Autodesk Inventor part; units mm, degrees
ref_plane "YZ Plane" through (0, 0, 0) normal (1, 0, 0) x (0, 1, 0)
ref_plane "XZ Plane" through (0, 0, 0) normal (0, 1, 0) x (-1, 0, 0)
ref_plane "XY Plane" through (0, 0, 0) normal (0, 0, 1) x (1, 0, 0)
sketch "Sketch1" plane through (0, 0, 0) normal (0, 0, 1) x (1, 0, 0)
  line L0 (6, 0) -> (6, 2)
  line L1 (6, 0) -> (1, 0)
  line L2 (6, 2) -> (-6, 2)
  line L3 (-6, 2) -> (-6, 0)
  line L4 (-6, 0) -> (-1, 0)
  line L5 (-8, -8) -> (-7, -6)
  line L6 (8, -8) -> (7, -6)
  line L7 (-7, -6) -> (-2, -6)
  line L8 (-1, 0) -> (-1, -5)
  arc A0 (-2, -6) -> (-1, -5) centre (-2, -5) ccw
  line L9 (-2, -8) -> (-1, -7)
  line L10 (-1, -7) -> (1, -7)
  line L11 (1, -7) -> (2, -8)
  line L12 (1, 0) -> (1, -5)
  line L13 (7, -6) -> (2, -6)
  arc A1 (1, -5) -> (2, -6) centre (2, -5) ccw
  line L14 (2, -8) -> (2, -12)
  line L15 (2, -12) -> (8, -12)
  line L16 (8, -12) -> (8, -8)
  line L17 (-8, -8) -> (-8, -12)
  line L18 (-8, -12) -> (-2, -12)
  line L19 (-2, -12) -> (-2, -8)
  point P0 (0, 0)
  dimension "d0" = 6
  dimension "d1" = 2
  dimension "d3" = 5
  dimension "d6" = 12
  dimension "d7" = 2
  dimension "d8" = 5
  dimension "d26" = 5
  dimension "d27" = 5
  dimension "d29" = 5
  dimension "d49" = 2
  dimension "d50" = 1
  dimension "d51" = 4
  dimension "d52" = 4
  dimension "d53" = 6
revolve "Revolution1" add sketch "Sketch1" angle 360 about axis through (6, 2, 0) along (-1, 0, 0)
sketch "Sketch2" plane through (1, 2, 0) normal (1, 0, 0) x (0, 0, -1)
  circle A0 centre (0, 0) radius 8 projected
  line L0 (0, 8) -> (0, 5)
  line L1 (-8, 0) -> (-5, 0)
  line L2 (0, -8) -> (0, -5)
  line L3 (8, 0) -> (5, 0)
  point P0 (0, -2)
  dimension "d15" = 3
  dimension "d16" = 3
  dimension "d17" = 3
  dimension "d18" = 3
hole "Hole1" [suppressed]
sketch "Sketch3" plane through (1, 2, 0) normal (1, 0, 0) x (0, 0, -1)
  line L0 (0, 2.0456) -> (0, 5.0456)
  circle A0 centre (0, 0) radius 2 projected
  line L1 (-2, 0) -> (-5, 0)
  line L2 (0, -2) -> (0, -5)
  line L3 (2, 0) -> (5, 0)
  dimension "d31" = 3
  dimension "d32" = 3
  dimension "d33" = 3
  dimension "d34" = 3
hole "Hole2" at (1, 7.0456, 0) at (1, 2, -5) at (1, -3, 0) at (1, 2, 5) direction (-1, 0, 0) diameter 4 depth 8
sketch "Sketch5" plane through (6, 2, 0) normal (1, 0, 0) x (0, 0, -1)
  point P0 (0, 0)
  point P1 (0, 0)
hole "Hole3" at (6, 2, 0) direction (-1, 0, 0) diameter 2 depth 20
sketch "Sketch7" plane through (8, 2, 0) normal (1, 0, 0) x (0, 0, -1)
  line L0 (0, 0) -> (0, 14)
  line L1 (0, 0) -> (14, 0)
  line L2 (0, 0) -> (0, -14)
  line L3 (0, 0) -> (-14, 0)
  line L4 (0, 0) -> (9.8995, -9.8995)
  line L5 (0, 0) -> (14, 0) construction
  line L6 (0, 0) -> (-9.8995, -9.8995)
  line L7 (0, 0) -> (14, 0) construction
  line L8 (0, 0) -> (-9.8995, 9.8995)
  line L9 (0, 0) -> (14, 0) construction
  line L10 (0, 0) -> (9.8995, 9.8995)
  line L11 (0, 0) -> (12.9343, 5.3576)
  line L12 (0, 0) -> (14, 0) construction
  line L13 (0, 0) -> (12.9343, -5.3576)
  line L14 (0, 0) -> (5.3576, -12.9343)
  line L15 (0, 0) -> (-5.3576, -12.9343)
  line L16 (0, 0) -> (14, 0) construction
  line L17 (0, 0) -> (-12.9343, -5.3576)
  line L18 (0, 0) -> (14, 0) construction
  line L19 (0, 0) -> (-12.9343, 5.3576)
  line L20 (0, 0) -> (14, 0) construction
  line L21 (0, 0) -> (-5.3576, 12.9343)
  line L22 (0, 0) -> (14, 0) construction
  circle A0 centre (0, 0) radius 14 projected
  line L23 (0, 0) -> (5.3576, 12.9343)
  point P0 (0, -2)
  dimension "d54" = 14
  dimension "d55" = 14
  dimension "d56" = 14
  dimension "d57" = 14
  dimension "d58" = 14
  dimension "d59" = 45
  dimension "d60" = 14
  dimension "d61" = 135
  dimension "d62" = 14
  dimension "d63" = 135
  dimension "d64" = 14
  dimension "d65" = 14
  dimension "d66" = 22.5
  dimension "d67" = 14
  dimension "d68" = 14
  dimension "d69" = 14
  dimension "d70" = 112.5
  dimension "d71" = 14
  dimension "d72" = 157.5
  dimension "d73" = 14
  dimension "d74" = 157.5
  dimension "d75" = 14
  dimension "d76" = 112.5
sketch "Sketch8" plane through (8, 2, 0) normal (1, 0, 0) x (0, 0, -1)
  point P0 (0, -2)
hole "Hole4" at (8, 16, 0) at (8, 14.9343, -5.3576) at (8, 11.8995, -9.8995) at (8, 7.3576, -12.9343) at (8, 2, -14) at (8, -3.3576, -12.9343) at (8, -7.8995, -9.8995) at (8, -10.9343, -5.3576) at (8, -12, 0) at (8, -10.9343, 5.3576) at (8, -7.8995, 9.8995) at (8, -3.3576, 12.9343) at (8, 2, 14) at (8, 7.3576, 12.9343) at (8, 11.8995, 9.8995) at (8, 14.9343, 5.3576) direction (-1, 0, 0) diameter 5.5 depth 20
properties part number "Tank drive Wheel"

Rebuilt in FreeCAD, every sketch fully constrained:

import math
import FreeCAD as App
import Part
import Sketcher

V = App.Vector
Q = App.Units.Quantity

doc = App.newDocument("Part")
params = doc.addObject("Spreadsheet::Sheet", "Params")
for row, (alias, value) in enumerate([
    ("sketch1_radius", "1 mm"),
    ("sketch1_width", "5 mm"),
    ("sketch1_width2", "12 mm"),
    ("sketch1_width3", "6 mm"),
    ("sketch1_height", "4 mm"),
    ("revolution_angle", "360 deg"),
    ("sketch2_diameter", "4 mm"),
    ("hole_diameter", "4 mm"),
    ("hole_depth", "8 mm"),
    ("sketch3_diameter", "2 mm"),
    ("hole2_diameter", "2 mm"),
    ("hole2_depth", "20 mm"),
    ("sketch4_diameter", "5.5 mm"),
    ("hole3_diameter", "5.5 mm"),
    ("hole3_depth", "20 mm"),
], start=1):
    params.set(f"A{row}", alias)
    params.set(f"B{row}", "=" + value)
    params.setAlias(f"B{row}", alias)

body = doc.addObject("PartDesign::Body", "Body")

# Sketch on XY plane
sketch1 = body.newObject("Sketcher::SketchObject", "Sketch")
sketch1.AttachmentSupport = (doc.getObject("XY_Plane"), [""])
sketch1.MapMode = "FlatFace"
sketch1.addGeometry(Part.LineSegment(V(1, 0, 0), V(6, 0, 0)), False)
sketch1.addGeometry(Part.LineSegment(V(6, 0, 0), V(6, 2, 0)), False)
sketch1.addGeometry(Part.LineSegment(V(6, 2, 0), V(-6, 2, 0)), False)
sketch1.addGeometry(Part.LineSegment(V(-6, 2, 0), V(-6, 0, 0)), False)
sketch1.addGeometry(Part.LineSegment(V(-6, 0, 0), V(-1, 0, 0)), False)
sketch1.addGeometry(Part.LineSegment(V(-1, 0, 0), V(-1, -5, 0)), False)
sketch1.addGeometry(Part.ArcOfCircle(Part.Circle(V(-2, -5, 0), V(0, 0, 1), 1), math.radians(-90), math.radians(0)), False)
sketch1.addGeometry(Part.LineSegment(V(-2, -6, 0), V(-7, -6, 0)), False)
sketch1.addGeometry(Part.LineSegment(V(-7, -6, 0), V(-8, -8, 0)), False)
sketch1.addGeometry(Part.LineSegment(V(-8, -8, 0), V(-8, -12, 0)), False)
sketch1.addGeometry(Part.LineSegment(V(-8, -12, 0), V(-2, -12, 0)), False)
sketch1.addGeometry(Part.LineSegment(V(-2, -12, 0), V(-2, -8, 0)), False)
sketch1.addGeometry(Part.LineSegment(V(-2, -8, 0), V(-1, -7, 0)), False)
sketch1.addGeometry(Part.LineSegment(V(-1, -7, 0), V(1, -7, 0)), False)
sketch1.addGeometry(Part.LineSegment(V(1, -7, 0), V(2, -8, 0)), False)
sketch1.addGeometry(Part.LineSegment(V(2, -8, 0), V(2, -12, 0)), False)
sketch1.addGeometry(Part.LineSegment(V(2, -12, 0), V(8, -12, 0)), False)
sketch1.addGeometry(Part.LineSegment(V(8, -12, 0), V(8, -8, 0)), False)
sketch1.addGeometry(Part.LineSegment(V(8, -8, 0), V(7, -6, 0)), False)
sketch1.addGeometry(Part.LineSegment(V(7, -6, 0), V(2, -6, 0)), False)
sketch1.addGeometry(Part.ArcOfCircle(Part.Circle(V(2, -5, 0), V(0, 0, 1), 1), math.radians(180), math.radians(270)), False)
sketch1.addGeometry(Part.LineSegment(V(1, -5, 0), V(1, 0, 0)), False)
sketch1.addGeometry(Part.LineSegment(V(8, 2, 0), V(-8, 2, 0)), True)  # axis
sketch1.addConstraint(Sketcher.Constraint("Coincident", 0, 2, 1, 1))
sketch1.addConstraint(Sketcher.Constraint("Coincident", 1, 2, 2, 1))
sketch1.addConstraint(Sketcher.Constraint("Coincident", 2, 2, 3, 1))
sketch1.addConstraint(Sketcher.Constraint("Coincident", 3, 2, 4, 1))
sketch1.addConstraint(Sketcher.Constraint("Coincident", 4, 2, 5, 1))
sketch1.addConstraint(Sketcher.Constraint("Tangent", 5, 2, 6, 2))
sketch1.addConstraint(Sketcher.Constraint("Tangent", 6, 1, 7, 1))
sketch1.addConstraint(Sketcher.Constraint("Coincident", 7, 2, 8, 1))
sketch1.addConstraint(Sketcher.Constraint("Coincident", 8, 2, 9, 1))
sketch1.addConstraint(Sketcher.Constraint("Coincident", 9, 2, 10, 1))
sketch1.addConstraint(Sketcher.Constraint("Coincident", 10, 2, 11, 1))
sketch1.addConstraint(Sketcher.Constraint("Coincident", 11, 2, 12, 1))
sketch1.addConstraint(Sketcher.Constraint("Coincident", 12, 2, 13, 1))
sketch1.addConstraint(Sketcher.Constraint("Coincident", 13, 2, 14, 1))
sketch1.addConstraint(Sketcher.Constraint("Coincident", 14, 2, 15, 1))
sketch1.addConstraint(Sketcher.Constraint("Coincident", 15, 2, 16, 1))
sketch1.addConstraint(Sketcher.Constraint("Coincident", 16, 2, 17, 1))
sketch1.addConstraint(Sketcher.Constraint("Coincident", 17, 2, 18, 1))
sketch1.addConstraint(Sketcher.Constraint("Coincident", 18, 2, 19, 1))
sketch1.addConstraint(Sketcher.Constraint("Tangent", 19, 2, 20, 2))
sketch1.addConstraint(Sketcher.Constraint("Tangent", 20, 1, 21, 1))
sketch1.addConstraint(Sketcher.Constraint("Coincident", 21, 2, 0, 1))
sketch1.addConstraint(Sketcher.Constraint("Horizontal", 0))
sketch1.addConstraint(Sketcher.Constraint("Vertical", 1))
sketch1.addConstraint(Sketcher.Constraint("Horizontal", 2))
sketch1.addConstraint(Sketcher.Constraint("Vertical", 3))
sketch1.addConstraint(Sketcher.Constraint("Horizontal", 4))
sketch1.addConstraint(Sketcher.Constraint("Vertical", 5))
sketch1.addConstraint(Sketcher.Constraint("Horizontal", 7))
sketch1.addConstraint(Sketcher.Constraint("Vertical", 9))
sketch1.addConstraint(Sketcher.Constraint("Horizontal", 10))
sketch1.addConstraint(Sketcher.Constraint("Vertical", 11))
sketch1.addConstraint(Sketcher.Constraint("Horizontal", 13))
sketch1.addConstraint(Sketcher.Constraint("Vertical", 15))
sketch1.addConstraint(Sketcher.Constraint("Horizontal", 16))
sketch1.addConstraint(Sketcher.Constraint("Vertical", 17))
sketch1.addConstraint(Sketcher.Constraint("Horizontal", 19))
sketch1.addConstraint(Sketcher.Constraint("Vertical", 21))
sketch1.addConstraint(Sketcher.Constraint("Horizontal", 22))
sketch1.addConstraint(Sketcher.Constraint("Equal", 6, 20))
sketch1.addConstraint(Sketcher.Constraint("Symmetric", 0, 2, 3, 2, -1, 1))
sketch1.addConstraint(Sketcher.Constraint("Symmetric", 6, 3, 20, 3, -2))
sketch1.addConstraint(Sketcher.Constraint("Symmetric", 11, 2, 14, 2, -2))
sketch1.addConstraint(Sketcher.Constraint("Symmetric", 9, 2, 16, 2, -2))
sketch1.addConstraint(Sketcher.Constraint("PointOnObject", 0, 2, -1))
sketch1.addConstraint(Sketcher.Constraint("Perpendicular", 12, 14))
sketch1.addConstraint(Sketcher.Constraint("Horizontal", 8, 2, 11, 2))
sketch1.addConstraint(Sketcher.Constraint("Horizontal", 14, 2, 17, 2))
sketch1.addConstraint(Sketcher.Constraint("Horizontal", 2, 2, 22, 1))
sketch1.addConstraint(Sketcher.Constraint("Vertical", 6, 1, 10, 2))
sketch1.addConstraint(Sketcher.Constraint("Vertical", 5, 2, 12, 2))
sketch1.addConstraint(Sketcher.Constraint("Vertical", 13, 2, 20, 1))
sketch1.addConstraint(Sketcher.Constraint("Vertical", 17, 2, 22, 1))
sketch1.addConstraint(Sketcher.Constraint("Vertical", 9, 2, 22, 2))
sketch1.addConstraint(Sketcher.Constraint("Equal", 4, 7))
sketch1.addConstraint(Sketcher.Constraint("Equal", 7, 19))
sketch1.addConstraint(Sketcher.Constraint("Equal", 13, 1))
sketch1.addConstraint(Sketcher.Constraint("Equal", 19, 5))
sketch1.addConstraint(Sketcher.Constraint("Radius", 6, Q("1 mm")))
sketch1.addConstraint(Sketcher.Constraint("DistanceX", 0, 1, 0, 2, Q("5 mm")))
sketch1.addConstraint(Sketcher.Constraint("DistanceX", 2, 2, 2, 1, Q("12 mm")))
sketch1.addConstraint(Sketcher.Constraint("DistanceX", 10, 1, 10, 2, Q("6 mm")))
sketch1.addConstraint(Sketcher.Constraint("DistanceY", 9, 2, 9, 1, Q("4 mm")))
sketch1.addConstraint(Sketcher.Constraint("DistanceY", 9, 2, -1, 1, Q("12 mm")))
sketch1.setExpression("Constraints[58]", "Params.sketch1_radius")
sketch1.setExpression("Constraints[59]", "Params.sketch1_width")
sketch1.setExpression("Constraints[60]", "Params.sketch1_width2")
sketch1.setExpression("Constraints[61]", "Params.sketch1_width3")
sketch1.setExpression("Constraints[62]", "Params.sketch1_height")
revolution = body.newObject("PartDesign::Revolution", "Revolution")
revolution.Profile = sketch1
revolution.ReferenceAxis = (sketch1, ["Axis0"])
revolution.setExpression("Angle", "Params.revolution_angle")

# Sketch on YZ plane
sketch2 = body.newObject("Sketcher::SketchObject", "Sketch001")
sketch2.AttachmentSupport = (doc.getObject("YZ_Plane"), [""])
sketch2.MapMode = "FlatFace"
sketch2.AttachmentOffset = App.Placement(V(0, 0, 1), App.Rotation())
sketch2.addGeometry(Part.Circle(V(7, 0, 0), V(0, 0, 1), 2), False)
sketch2.addGeometry(Part.Circle(V(2, -5, 0), V(0, 0, 1), 2), False)
sketch2.addGeometry(Part.Circle(V(-3, 0, 0), V(0, 0, 1), 2), False)
sketch2.addGeometry(Part.Circle(V(2, 5, 0), V(0, 0, 1), 2), False)
sketch2.addConstraint(Sketcher.Constraint("Equal", 0, 1))
sketch2.addConstraint(Sketcher.Constraint("Equal", 1, 2))
sketch2.addConstraint(Sketcher.Constraint("Equal", 2, 3))
sketch2.addConstraint(Sketcher.Constraint("Symmetric", 1, 3, 3, 3, -1))
sketch2.addConstraint(Sketcher.Constraint("PointOnObject", 0, 3, -1))
sketch2.addConstraint(Sketcher.Constraint("PointOnObject", 2, 3, -1))
sketch2.addConstraint(Sketcher.Constraint("Diameter", 0, Q("4 mm")))
sketch2.addConstraint(Sketcher.Constraint("DistanceX", -1, 1, 1, 3, Q("2 mm")))
sketch2.addConstraint(Sketcher.Constraint("DistanceY", 1, 3, -1, 1, Q("5 mm")))
sketch2.addConstraint(Sketcher.Constraint("DistanceX", 2, 3, -1, 1, Q("3 mm")))
sketch2.addConstraint(Sketcher.Constraint("DistanceX", -1, 1, 0, 3, Q("7.0456 mm")))
sketch2.setExpression("Constraints[6]", "Params.sketch2_diameter")
doc.recompute()
hole = body.newObject("PartDesign::Hole", "Hole")
hole.Profile = sketch2
hole.ThreadType = "None"
hole.setExpression("Diameter", "Params.hole_diameter")
hole.DepthType = "Dimension"
hole.setExpression("Depth", "Params.hole_depth")
hole.DrillPoint = "Flat"

# Sketch on YZ plane
sketch3 = body.newObject("Sketcher::SketchObject", "Sketch002")
sketch3.AttachmentSupport = (doc.getObject("YZ_Plane"), [""])
sketch3.MapMode = "FlatFace"
sketch3.AttachmentOffset = App.Placement(V(0, 0, 6), App.Rotation())
sketch3.addGeometry(Part.Circle(V(2, 0, 0), V(0, 0, 1), 1), False)
sketch3.addConstraint(Sketcher.Constraint("PointOnObject", 0, 3, -1))
sketch3.addConstraint(Sketcher.Constraint("Diameter", 0, Q("2 mm")))
sketch3.addConstraint(Sketcher.Constraint("DistanceX", -1, 1, 0, 3, Q("2 mm")))
sketch3.setExpression("Constraints[1]", "Params.sketch3_diameter")
doc.recompute()
hole2 = body.newObject("PartDesign::Hole", "Hole001")
hole2.Profile = sketch3
hole2.ThreadType = "None"
hole2.setExpression("Diameter", "Params.hole2_diameter")
hole2.DepthType = "Dimension"
hole2.setExpression("Depth", "Params.hole2_depth")
hole2.DrillPoint = "Flat"

# Sketch on YZ plane
sketch4 = body.newObject("Sketcher::SketchObject", "Sketch003")
sketch4.AttachmentSupport = (doc.getObject("YZ_Plane"), [""])
sketch4.MapMode = "FlatFace"
sketch4.AttachmentOffset = App.Placement(V(0, 0, 8), App.Rotation())
sketch4.addGeometry(Part.Circle(V(16, 0, 0), V(0, 0, 1), 2.8), False)
sketch4.addGeometry(Part.Circle(V(14.9, -5.4, 0), V(0, 0, 1), 2.8), False)
sketch4.addGeometry(Part.Circle(V(11.9, -9.9, 0), V(0, 0, 1), 2.8), False)
sketch4.addGeometry(Part.Circle(V(7.4, -12.9, 0), V(0, 0, 1), 2.8), False)
sketch4.addGeometry(Part.Circle(V(2, -14, 0), V(0, 0, 1), 2.8), False)
sketch4.addGeometry(Part.Circle(V(-3.4, -12.9, 0), V(0, 0, 1), 2.8), False)
sketch4.addGeometry(Part.Circle(V(-7.9, -9.9, 0), V(0, 0, 1), 2.8), False)
sketch4.addGeometry(Part.Circle(V(-10.9, -5.4, 0), V(0, 0, 1), 2.8), False)
sketch4.addGeometry(Part.Circle(V(-12, 0, 0), V(0, 0, 1), 2.8), False)
sketch4.addGeometry(Part.Circle(V(-10.9, 5.4, 0), V(0, 0, 1), 2.8), False)
sketch4.addGeometry(Part.Circle(V(-7.9, 9.9, 0), V(0, 0, 1), 2.8), False)
sketch4.addGeometry(Part.Circle(V(-3.4, 12.9, 0), V(0, 0, 1), 2.8), False)
sketch4.addGeometry(Part.Circle(V(2, 14, 0), V(0, 0, 1), 2.8), False)
sketch4.addGeometry(Part.Circle(V(7.4, 12.9, 0), V(0, 0, 1), 2.8), False)
sketch4.addGeometry(Part.Circle(V(11.9, 9.9, 0), V(0, 0, 1), 2.8), False)
sketch4.addGeometry(Part.Circle(V(14.9, 5.4, 0), V(0, 0, 1), 2.8), False)
sketch4.addConstraint(Sketcher.Constraint("Equal", 0, 1))
sketch4.addConstraint(Sketcher.Constraint("Equal", 1, 2))
sketch4.addConstraint(Sketcher.Constraint("Equal", 2, 3))
sketch4.addConstraint(Sketcher.Constraint("Equal", 3, 4))
sketch4.addConstraint(Sketcher.Constraint("Equal", 4, 5))
sketch4.addConstraint(Sketcher.Constraint("Equal", 5, 6))
sketch4.addConstraint(Sketcher.Constraint("Equal", 6, 7))
sketch4.addConstraint(Sketcher.Constraint("Equal", 7, 8))
sketch4.addConstraint(Sketcher.Constraint("Equal", 8, 9))
sketch4.addConstraint(Sketcher.Constraint("Equal", 9, 10))
sketch4.addConstraint(Sketcher.Constraint("Equal", 10, 11))
sketch4.addConstraint(Sketcher.Constraint("Equal", 11, 12))
sketch4.addConstraint(Sketcher.Constraint("Equal", 12, 13))
sketch4.addConstraint(Sketcher.Constraint("Equal", 13, 14))
sketch4.addConstraint(Sketcher.Constraint("Equal", 14, 15))
sketch4.addConstraint(Sketcher.Constraint("Symmetric", 7, 3, 9, 3, -1))
sketch4.addConstraint(Sketcher.Constraint("Symmetric", 6, 3, 10, 3, -1))
sketch4.addConstraint(Sketcher.Constraint("Symmetric", 5, 3, 11, 3, -1))
sketch4.addConstraint(Sketcher.Constraint("Symmetric", 4, 3, 12, 3, -1))
sketch4.addConstraint(Sketcher.Constraint("Symmetric", 3, 3, 13, 3, -1))
sketch4.addConstraint(Sketcher.Constraint("Symmetric", 2, 3, 14, 3, -1))
sketch4.addConstraint(Sketcher.Constraint("Symmetric", 1, 3, 15, 3, -1))
sketch4.addConstraint(Sketcher.Constraint("PointOnObject", 0, 3, -1))
sketch4.addConstraint(Sketcher.Constraint("PointOnObject", 8, 3, -1))
sketch4.addConstraint(Sketcher.Constraint("Horizontal", 3, 3, 5, 3))
sketch4.addConstraint(Sketcher.Constraint("Horizontal", 2, 3, 6, 3))
sketch4.addConstraint(Sketcher.Constraint("Horizontal", 1, 3, 7, 3))
sketch4.addConstraint(Sketcher.Constraint("Diameter", 0, Q("5.5 mm")))
sketch4.addConstraint(Sketcher.Constraint("DistanceX", -1, 1, 0, 3, Q("16 mm")))
sketch4.addConstraint(Sketcher.Constraint("DistanceX", -1, 1, 4, 3, Q("2 mm")))
sketch4.addConstraint(Sketcher.Constraint("DistanceY", 4, 3, -1, 1, Q("14 mm")))
sketch4.addConstraint(Sketcher.Constraint("DistanceX", 8, 3, -1, 1, Q("12 mm")))
sketch4.addConstraint(Sketcher.Constraint("DistanceY", 2, 3, 1, 3, Q("4.542 mm")))
sketch4.addConstraint(Sketcher.Constraint("DistanceX", 3, 3, 2, 3, Q("4.542 mm")))
sketch4.addConstraint(Sketcher.Constraint("DistanceX", 5, 3, 2, 3, Q("15.257 mm")))
sketch4.addConstraint(Sketcher.Constraint("DistanceX", 5, 3, 1, 3, Q("18.292 mm")))
sketch4.addConstraint(Sketcher.Constraint("DistanceX", 6, 3, 5, 3, Q("4.542 mm")))
sketch4.addConstraint(Sketcher.Constraint("DistanceX", 7, 3, 3, 3, Q("18.292 mm")))
sketch4.addConstraint(Sketcher.Constraint("DistanceY", 6, 3, 9, 3, Q("15.257 mm")))
sketch4.addConstraint(Sketcher.Constraint("DistanceY", 5, 3, 9, 3, Q("18.292 mm")))
sketch4.addConstraint(Sketcher.Constraint("DistanceX", -1, 1, 1, 3, Q("14.9343 mm")))
sketch4.setExpression("Constraints[27]", "Params.sketch4_diameter")
doc.recompute()
hole3 = body.newObject("PartDesign::Hole", "Hole002")
hole3.Profile = sketch4
hole3.ThreadType = "None"
hole3.setExpression("Diameter", "Params.hole3_diameter")
hole3.DepthType = "Dimension"
hole3.setExpression("Depth", "Params.hole3_depth")
hole3.DrillPoint = "Flat"

doc.recompute()
